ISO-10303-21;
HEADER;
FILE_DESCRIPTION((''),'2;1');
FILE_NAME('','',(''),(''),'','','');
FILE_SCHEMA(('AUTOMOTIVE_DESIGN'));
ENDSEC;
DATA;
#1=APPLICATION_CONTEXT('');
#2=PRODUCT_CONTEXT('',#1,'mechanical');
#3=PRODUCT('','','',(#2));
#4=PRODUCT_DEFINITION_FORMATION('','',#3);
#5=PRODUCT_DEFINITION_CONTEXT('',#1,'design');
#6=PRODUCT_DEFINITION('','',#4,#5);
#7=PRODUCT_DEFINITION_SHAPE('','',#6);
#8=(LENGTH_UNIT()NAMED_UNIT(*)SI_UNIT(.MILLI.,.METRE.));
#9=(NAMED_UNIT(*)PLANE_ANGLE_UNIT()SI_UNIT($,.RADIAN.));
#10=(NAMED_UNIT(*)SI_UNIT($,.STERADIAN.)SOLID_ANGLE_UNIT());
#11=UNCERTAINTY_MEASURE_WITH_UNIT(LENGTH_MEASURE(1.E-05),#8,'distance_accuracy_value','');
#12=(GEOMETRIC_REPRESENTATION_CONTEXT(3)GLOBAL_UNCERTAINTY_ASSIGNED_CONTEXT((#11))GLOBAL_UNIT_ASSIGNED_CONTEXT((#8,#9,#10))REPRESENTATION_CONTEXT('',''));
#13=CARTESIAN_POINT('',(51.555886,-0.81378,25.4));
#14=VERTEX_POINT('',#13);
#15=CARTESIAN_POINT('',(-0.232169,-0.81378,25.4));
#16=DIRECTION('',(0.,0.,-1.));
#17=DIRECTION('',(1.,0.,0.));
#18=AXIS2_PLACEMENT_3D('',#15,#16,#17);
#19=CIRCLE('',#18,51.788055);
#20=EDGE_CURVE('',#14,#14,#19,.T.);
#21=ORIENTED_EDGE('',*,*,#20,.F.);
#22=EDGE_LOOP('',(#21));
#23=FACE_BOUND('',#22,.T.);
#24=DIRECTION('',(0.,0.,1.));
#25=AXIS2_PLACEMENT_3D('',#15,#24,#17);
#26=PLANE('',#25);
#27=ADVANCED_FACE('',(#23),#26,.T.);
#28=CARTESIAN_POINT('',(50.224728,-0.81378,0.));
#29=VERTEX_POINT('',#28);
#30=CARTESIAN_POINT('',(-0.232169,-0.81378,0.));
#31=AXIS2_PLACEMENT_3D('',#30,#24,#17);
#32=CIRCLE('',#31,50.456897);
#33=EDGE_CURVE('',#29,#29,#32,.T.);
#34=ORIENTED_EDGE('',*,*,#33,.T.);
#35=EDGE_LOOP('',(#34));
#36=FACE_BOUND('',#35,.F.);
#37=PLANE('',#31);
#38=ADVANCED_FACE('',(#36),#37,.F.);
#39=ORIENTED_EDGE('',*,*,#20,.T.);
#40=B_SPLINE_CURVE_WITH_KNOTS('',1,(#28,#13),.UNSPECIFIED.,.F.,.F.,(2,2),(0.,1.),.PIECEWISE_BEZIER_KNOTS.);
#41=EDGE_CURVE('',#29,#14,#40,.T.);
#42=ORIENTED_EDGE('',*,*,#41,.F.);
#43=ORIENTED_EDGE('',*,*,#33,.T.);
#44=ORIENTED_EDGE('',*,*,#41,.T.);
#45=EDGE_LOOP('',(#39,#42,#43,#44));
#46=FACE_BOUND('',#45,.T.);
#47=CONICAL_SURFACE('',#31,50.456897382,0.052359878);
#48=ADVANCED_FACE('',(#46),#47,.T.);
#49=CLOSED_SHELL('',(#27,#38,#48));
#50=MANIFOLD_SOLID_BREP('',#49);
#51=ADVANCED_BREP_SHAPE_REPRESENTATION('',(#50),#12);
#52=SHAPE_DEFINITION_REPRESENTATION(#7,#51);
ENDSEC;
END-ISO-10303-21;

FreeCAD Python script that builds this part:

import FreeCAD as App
import Part
import Sketcher

V = App.Vector
Q = App.Units.Quantity

doc = App.newDocument("Part")
body = doc.addObject("PartDesign::Body", "Body")

sketch1 = body.newObject("Sketcher::SketchObject", "Sketch")
sketch1.AttachmentSupport = (doc.getObject("XY_Plane"), [""])
sketch1.MapMode = "FlatFace"
sketch1.addGeometry(Part.Circle(V(0, -1, 0), V(0, 0, 1), 50), False)
sketch1.addConstraint([
    Sketcher.Constraint("Diameter", 0, 100.913795),
    Sketcher.Constraint("DistanceX", 0, 3, -1, 1, 0.232169),
    Sketcher.Constraint("DistanceY", 0, 3, -1, 1, 0.81378),
])
pad1 = body.newObject("PartDesign::Pad", "Pad")
pad1.Profile = sketch1
pad1.Length = Q("1 in")
pad1.TaperAngle = 3

doc.recompute()
